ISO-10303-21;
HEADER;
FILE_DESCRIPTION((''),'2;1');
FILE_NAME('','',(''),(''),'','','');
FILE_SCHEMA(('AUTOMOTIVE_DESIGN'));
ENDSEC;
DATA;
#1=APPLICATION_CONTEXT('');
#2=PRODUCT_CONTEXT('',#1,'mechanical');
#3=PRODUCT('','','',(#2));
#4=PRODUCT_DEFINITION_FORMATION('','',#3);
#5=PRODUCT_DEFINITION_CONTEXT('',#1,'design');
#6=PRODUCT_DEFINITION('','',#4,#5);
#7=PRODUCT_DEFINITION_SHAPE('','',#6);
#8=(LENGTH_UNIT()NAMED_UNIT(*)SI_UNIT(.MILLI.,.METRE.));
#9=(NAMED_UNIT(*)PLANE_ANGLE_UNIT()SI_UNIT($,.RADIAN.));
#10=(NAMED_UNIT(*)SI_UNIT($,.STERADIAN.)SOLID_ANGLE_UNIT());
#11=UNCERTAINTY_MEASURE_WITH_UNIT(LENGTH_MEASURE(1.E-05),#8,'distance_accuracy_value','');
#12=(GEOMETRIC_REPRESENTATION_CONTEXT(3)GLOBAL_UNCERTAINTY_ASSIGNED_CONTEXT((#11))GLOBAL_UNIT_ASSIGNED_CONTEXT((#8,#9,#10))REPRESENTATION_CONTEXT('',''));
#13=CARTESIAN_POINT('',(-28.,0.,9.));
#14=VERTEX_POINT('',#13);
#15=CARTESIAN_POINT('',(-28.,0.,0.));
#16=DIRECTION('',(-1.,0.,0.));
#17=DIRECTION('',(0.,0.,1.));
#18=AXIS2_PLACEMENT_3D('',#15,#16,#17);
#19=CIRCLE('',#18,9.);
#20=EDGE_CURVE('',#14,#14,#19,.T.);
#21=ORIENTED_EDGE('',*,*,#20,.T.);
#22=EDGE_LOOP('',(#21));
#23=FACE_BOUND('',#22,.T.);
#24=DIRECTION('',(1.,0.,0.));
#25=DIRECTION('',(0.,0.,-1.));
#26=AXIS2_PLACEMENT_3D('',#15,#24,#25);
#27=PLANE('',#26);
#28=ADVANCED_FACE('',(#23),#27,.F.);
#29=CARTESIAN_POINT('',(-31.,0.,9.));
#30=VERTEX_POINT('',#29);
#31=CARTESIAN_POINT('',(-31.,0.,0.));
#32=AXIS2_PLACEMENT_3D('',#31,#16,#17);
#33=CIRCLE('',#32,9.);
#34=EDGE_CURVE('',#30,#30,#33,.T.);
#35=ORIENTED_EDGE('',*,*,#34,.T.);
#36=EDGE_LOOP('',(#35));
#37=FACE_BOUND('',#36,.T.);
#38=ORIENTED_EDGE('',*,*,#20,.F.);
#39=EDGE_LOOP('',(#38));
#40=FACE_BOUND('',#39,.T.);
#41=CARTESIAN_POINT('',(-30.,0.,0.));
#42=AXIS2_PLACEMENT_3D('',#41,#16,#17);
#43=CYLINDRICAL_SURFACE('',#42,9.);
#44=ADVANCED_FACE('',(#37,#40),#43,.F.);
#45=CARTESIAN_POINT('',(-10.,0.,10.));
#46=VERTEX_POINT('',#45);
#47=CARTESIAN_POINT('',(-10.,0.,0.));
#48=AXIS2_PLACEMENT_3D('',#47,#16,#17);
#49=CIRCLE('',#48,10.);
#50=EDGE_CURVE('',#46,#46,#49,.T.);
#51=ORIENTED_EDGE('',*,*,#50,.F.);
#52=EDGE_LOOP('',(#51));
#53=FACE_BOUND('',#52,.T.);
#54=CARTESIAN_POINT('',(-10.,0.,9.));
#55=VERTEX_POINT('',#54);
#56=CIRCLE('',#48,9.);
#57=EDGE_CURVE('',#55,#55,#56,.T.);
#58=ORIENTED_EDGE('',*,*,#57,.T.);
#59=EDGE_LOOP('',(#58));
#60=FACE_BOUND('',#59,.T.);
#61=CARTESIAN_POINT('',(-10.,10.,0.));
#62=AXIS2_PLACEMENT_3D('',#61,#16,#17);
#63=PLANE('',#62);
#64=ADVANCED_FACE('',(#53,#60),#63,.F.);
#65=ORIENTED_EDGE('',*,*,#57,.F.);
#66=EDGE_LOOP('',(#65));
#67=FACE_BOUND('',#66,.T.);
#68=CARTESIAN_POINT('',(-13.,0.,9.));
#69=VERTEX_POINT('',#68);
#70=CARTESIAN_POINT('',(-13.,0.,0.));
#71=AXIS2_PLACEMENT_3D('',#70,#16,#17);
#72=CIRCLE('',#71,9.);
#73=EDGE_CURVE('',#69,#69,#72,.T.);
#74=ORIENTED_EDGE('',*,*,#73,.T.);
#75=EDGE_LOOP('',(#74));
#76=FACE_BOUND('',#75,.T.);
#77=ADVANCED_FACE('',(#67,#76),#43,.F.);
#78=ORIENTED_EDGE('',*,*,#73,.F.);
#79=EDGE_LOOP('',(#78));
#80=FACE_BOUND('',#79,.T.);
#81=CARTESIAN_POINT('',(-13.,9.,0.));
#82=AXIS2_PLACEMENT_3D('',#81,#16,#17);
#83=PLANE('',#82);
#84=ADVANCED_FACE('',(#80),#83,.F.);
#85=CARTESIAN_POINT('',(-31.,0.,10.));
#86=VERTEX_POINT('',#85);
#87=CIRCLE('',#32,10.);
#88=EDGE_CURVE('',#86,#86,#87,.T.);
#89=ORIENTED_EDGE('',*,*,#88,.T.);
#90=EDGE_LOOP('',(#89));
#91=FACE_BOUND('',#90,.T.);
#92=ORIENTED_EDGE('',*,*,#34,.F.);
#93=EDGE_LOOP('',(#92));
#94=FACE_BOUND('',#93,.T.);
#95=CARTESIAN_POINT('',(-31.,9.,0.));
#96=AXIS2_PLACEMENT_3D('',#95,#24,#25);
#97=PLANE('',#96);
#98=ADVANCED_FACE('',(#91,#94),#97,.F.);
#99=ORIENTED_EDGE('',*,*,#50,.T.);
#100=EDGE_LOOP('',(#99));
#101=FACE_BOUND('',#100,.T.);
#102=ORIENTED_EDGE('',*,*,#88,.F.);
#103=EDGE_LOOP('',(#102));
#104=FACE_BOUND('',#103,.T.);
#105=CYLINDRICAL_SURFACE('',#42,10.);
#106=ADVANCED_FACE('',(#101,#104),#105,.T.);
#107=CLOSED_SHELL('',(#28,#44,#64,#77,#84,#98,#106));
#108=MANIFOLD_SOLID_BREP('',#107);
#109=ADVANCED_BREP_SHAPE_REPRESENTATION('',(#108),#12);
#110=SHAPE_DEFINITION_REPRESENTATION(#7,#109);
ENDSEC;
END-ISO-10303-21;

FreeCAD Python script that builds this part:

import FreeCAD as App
import Part
import Sketcher

doc = App.newDocument("Part")
body = doc.addObject("PartDesign::Body", "Body")

# Sketch on XY plane
sketch1 = body.newObject("Sketcher::SketchObject", "Sketch")
sketch1.AttachmentSupport = (doc.getObject("XY_Plane"), [""])
sketch1.MapMode = "FlatFace"
sketch1.addGeometry([
    Part.LineSegment(App.Vector(-13, 0, 0), App.Vector(-13, 9, 0)),  # 0
    Part.LineSegment(App.Vector(-13, 9, 0), App.Vector(-10, 9, 0)),  # 1
    Part.LineSegment(App.Vector(-10, 9, 0), App.Vector(-10, 10, 0)),  # 2
    Part.LineSegment(App.Vector(-10, 10, 0), App.Vector(-31, 10, 0)),  # 3
    Part.LineSegment(App.Vector(-31, 10, 0), App.Vector(-31, 9, 0)),  # 4
    Part.LineSegment(App.Vector(-31, 9, 0), App.Vector(-28, 9, 0)),  # 5
    Part.LineSegment(App.Vector(-28, 9, 0), App.Vector(-28, 0, 0)),  # 6
    Part.LineSegment(App.Vector(-28, 0, 0), App.Vector(-13, 0, 0)),  # 7
], False)
sketch1.addConstraint([
    Sketcher.Constraint("Coincident", 0, 2, 1, 1),
    Sketcher.Constraint("Coincident", 1, 2, 2, 1),
    Sketcher.Constraint("Coincident", 2, 2, 3, 1),
    Sketcher.Constraint("Coincident", 3, 2, 4, 1),
    Sketcher.Constraint("Coincident", 4, 2, 5, 1),
    Sketcher.Constraint("Coincident", 5, 2, 6, 1),
    Sketcher.Constraint("Coincident", 6, 2, 7, 1),
    Sketcher.Constraint("Coincident", 7, 2, 0, 1),
    Sketcher.Constraint("Vertical", 0),
    Sketcher.Constraint("Horizontal", 1),
    Sketcher.Constraint("Vertical", 2),
    Sketcher.Constraint("Horizontal", 3),
    Sketcher.Constraint("Vertical", 4),
    Sketcher.Constraint("Horizontal", 5),
    Sketcher.Constraint("Vertical", 6),
    Sketcher.Constraint("Horizontal", 7),
    Sketcher.Constraint("PointOnObject", 6, 2, -1),
    Sketcher.Constraint("Horizontal", 1, 2, 4, 2),
    Sketcher.Constraint("Equal", 1, 5),
    Sketcher.Constraint("DistanceX", 1, 1, 1, 2, 3.0),
    Sketcher.Constraint("DistanceX", 3, 2, 3, 1, 21.0),
    Sketcher.Constraint("DistanceY", 0, 1, 0, 2, 9.0),
    Sketcher.Constraint("DistanceY", 2, 1, 2, 2, 1.0),
    Sketcher.Constraint("DistanceX", 0, 2, -1, 1, 13.0),
])
revolution = body.newObject("PartDesign::Revolution", "Revolution")
revolution.Profile = sketch1
revolution.ReferenceAxis = (sketch1, ["H_Axis"])
revolution.Angle = 360

doc.recompute()
